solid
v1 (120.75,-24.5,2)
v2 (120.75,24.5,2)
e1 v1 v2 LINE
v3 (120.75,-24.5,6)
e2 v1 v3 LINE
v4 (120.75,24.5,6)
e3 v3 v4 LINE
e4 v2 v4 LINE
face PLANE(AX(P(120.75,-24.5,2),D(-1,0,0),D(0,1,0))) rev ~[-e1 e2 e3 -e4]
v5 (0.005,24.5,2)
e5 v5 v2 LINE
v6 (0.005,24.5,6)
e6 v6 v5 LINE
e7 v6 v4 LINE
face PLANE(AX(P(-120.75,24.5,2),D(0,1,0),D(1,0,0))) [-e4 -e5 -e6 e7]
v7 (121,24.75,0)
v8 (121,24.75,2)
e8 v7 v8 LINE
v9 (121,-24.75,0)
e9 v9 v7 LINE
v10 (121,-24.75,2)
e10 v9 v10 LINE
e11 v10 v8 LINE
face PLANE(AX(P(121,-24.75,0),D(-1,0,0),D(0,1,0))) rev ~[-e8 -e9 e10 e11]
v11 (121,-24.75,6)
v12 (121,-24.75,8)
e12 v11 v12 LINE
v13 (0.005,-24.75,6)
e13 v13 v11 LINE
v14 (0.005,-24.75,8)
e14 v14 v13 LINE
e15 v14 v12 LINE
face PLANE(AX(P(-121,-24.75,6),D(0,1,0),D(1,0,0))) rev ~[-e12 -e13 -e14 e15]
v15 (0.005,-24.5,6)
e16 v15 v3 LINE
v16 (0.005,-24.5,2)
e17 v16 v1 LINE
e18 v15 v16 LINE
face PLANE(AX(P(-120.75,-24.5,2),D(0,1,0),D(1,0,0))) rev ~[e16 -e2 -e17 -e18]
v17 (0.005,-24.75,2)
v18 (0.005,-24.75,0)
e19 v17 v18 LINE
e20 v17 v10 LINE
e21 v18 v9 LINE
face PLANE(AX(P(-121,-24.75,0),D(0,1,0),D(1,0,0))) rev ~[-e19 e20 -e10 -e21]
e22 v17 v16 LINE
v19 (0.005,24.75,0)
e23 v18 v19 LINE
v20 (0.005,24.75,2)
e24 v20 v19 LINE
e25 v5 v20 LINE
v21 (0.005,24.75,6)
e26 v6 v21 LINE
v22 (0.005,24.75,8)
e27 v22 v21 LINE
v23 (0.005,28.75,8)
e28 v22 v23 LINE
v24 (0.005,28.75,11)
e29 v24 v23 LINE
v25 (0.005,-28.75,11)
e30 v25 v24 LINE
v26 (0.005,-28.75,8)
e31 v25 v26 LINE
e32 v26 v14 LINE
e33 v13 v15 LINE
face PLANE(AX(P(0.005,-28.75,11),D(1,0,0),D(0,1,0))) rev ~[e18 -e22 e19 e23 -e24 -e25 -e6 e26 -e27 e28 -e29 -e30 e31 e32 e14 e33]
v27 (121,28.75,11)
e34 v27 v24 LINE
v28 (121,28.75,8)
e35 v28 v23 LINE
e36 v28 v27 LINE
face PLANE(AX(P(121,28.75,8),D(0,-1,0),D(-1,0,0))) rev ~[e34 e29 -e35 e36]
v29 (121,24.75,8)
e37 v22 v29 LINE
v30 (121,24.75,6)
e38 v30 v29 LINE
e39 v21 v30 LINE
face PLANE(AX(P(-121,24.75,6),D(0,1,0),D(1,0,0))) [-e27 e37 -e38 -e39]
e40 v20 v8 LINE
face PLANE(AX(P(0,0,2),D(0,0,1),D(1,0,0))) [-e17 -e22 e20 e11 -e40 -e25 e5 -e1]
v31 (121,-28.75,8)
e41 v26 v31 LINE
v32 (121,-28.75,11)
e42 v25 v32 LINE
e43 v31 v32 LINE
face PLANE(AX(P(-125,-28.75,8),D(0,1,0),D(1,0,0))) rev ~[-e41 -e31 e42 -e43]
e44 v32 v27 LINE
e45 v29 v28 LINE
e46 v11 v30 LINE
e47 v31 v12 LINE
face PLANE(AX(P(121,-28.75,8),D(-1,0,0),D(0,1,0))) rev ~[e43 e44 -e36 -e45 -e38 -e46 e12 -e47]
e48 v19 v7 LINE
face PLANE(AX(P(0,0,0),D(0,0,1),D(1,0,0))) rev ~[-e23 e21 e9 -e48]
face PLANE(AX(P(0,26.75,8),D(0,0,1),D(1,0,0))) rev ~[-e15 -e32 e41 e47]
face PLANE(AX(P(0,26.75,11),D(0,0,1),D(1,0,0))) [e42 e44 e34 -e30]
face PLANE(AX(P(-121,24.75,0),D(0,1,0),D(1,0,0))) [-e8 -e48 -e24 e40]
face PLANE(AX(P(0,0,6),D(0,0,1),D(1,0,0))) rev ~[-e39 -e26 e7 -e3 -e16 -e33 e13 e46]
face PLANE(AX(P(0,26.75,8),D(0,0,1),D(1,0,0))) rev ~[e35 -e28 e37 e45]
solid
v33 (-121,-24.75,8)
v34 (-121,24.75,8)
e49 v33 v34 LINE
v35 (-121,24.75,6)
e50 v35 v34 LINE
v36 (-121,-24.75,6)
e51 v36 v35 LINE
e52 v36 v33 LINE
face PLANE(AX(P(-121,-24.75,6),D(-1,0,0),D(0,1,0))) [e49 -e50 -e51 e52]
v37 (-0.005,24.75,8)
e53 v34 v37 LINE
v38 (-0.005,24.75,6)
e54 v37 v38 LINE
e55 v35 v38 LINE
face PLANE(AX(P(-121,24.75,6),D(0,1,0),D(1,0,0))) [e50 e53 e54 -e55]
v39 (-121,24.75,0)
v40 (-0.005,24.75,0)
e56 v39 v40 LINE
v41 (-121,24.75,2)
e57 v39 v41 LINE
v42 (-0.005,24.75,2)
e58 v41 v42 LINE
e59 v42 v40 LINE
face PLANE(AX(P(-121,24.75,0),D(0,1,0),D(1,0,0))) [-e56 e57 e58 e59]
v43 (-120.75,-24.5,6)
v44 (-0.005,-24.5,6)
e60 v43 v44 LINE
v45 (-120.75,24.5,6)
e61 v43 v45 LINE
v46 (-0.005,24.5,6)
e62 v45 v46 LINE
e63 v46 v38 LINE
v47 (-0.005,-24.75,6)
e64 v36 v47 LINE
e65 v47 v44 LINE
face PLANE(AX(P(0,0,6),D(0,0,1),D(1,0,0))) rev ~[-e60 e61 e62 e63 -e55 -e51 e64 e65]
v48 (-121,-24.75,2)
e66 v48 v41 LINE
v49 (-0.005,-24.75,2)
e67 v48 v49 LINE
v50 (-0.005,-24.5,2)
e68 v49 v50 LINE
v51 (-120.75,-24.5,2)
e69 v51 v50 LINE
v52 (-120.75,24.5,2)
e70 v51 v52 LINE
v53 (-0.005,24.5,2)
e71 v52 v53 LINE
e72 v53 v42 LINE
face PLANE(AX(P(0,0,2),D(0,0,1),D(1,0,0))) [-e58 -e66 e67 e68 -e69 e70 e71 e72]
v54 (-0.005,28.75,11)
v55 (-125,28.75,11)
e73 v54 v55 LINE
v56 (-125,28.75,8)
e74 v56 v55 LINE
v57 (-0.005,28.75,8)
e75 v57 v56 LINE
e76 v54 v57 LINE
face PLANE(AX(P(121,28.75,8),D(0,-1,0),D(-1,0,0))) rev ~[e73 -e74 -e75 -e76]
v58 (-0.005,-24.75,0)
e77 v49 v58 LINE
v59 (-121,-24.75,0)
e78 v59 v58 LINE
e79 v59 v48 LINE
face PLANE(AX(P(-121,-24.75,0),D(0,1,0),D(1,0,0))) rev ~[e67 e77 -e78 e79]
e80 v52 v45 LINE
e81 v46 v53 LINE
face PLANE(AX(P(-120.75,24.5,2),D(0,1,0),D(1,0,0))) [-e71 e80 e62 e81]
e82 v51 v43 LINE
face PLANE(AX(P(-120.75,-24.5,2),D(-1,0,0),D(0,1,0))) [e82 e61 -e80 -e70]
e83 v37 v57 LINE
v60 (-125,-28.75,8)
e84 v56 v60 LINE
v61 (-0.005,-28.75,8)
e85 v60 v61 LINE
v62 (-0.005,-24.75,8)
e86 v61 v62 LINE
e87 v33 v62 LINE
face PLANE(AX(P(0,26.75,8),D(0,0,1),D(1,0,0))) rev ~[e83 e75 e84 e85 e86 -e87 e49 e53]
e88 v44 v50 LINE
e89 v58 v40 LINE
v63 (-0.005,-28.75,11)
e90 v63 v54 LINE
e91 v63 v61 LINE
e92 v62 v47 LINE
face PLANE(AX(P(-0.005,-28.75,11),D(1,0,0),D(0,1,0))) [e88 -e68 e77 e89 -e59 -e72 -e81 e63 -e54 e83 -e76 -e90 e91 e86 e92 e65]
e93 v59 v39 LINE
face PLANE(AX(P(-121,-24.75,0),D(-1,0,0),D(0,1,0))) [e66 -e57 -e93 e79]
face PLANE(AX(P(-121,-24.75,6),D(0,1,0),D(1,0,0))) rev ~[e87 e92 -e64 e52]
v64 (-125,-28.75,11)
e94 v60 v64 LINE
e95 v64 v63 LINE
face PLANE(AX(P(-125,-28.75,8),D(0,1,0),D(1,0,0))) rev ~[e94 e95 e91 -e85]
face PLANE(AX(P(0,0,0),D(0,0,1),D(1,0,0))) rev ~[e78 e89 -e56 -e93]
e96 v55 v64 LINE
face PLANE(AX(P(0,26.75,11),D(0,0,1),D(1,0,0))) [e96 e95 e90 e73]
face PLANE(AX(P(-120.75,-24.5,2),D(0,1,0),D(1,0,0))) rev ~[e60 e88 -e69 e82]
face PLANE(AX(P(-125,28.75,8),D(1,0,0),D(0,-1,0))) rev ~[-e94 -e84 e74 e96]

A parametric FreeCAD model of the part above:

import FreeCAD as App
import Part
import Sketcher

V = App.Vector


def add_polygon(sketch, points):
    """Adds a closed chain of lines whose ends are joined by coincident constraints."""
    first, n = sketch.GeometryCount, len(points)
    for a, b in zip(points, points[1:] + points[:1]):
        sketch.addGeometry(Part.LineSegment(App.Vector(*a, 0), App.Vector(*b, 0)), False)
    for i in range(n):
        sketch.addConstraint(Sketcher.Constraint("Coincident", first + i, 2, first + (i + 1) % n, 1))

doc = App.newDocument("Part")
body = doc.addObject("PartDesign::Body", "Body")
body.AllowCompound = True

sketch1 = body.newObject("Sketcher::SketchObject", "Sketch")
sketch1.AttachmentSupport = (doc.getObject("XY_Plane"), [""])
sketch1.MapMode = "FlatFace"
add_polygon(sketch1, [(-121, 25), (-121, -25), (121, -25), (121, 25)])
sketch1.addConstraint([
    Sketcher.Constraint("Vertical", 0),
    Sketcher.Constraint("Horizontal", 1),
    Sketcher.Constraint("Vertical", 2),
    Sketcher.Constraint("Horizontal", 3),
    Sketcher.Constraint("Symmetric", 0, 2, 2, 2, -1, 1),
    Sketcher.Constraint("DistanceX", 1, 1, 1, 2, 242.0),
    Sketcher.Constraint("DistanceY", 0, 2, 0, 1, 49.5),
])
pad1 = body.newObject("PartDesign::Pad", "Pad")
pad1.Profile = sketch1
pad1.Length = 2

sketch2 = body.newObject("Sketcher::SketchObject", "Sketch001")
sketch2.AttachmentSupport = (doc.getObject("XY_Plane"), [""])
sketch2.MapMode = "FlatFace"
sketch2.AttachmentOffset = App.Placement(V(0, 0, 2), App.Rotation())
add_polygon(sketch2, [(-121, 24), (-121, -24), (121, -24), (121, 24)])
sketch2.addConstraint([
    Sketcher.Constraint("Vertical", 0),
    Sketcher.Constraint("Horizontal", 1),
    Sketcher.Constraint("Vertical", 2),
    Sketcher.Constraint("Horizontal", 3),
    Sketcher.Constraint("Symmetric", 0, 2, 2, 2, -1, 1),
    Sketcher.Constraint("DistanceY", 0, 2, 0, 1, 49.0),
    Sketcher.Constraint("DistanceX", 1, 1, 1, 2, 241.5),
])
pad2 = body.newObject("PartDesign::Pad", "Pad001")
pad2.Profile = sketch2
pad2.Length = 4

sketch3 = body.newObject("Sketcher::SketchObject", "Sketch002")
sketch3.AttachmentSupport = (doc.getObject("XY_Plane"), [""])
sketch3.MapMode = "FlatFace"
sketch3.AttachmentOffset = App.Placement(V(0, 0, 6), App.Rotation())
add_polygon(sketch3, [(-121, 25), (-121, -25), (121, -25), (121, 25)])
sketch3.addConstraint([
    Sketcher.Constraint("Vertical", 0),
    Sketcher.Constraint("Horizontal", 1),
    Sketcher.Constraint("Vertical", 2),
    Sketcher.Constraint("Horizontal", 3),
    Sketcher.Constraint("Symmetric", 0, 2, 2, 2, -1, 1),
    Sketcher.Constraint("DistanceX", 1, 1, 1, 2, 242.0),
    Sketcher.Constraint("DistanceY", 0, 2, 0, 1, 49.5),
])
pad3 = body.newObject("PartDesign::Pad", "Pad002")
pad3.Profile = sketch3
pad3.Length = 2

sketch4 = body.newObject("Sketcher::SketchObject", "Sketch003")
sketch4.AttachmentSupport = (doc.getObject("XY_Plane"), [""])
sketch4.MapMode = "FlatFace"
sketch4.AttachmentOffset = App.Placement(V(0, 0, 8), App.Rotation())
add_polygon(sketch4, [(121, 29), (-125, 29), (-125, -29), (121, -29)])
sketch4.addConstraint([
    Sketcher.Constraint("Horizontal", 0),
    Sketcher.Constraint("Vertical", 1),
    Sketcher.Constraint("Horizontal", 2),
    Sketcher.Constraint("Vertical", 3),
    Sketcher.Constraint("DistanceX", 0, 2, 0, 1, 246.0),
    Sketcher.Constraint("DistanceY", 1, 2, 1, 1, 57.5),
    Sketcher.Constraint("DistanceX", 0, 2, -1, 1, 125.0),
    Sketcher.Constraint("DistanceY", -1, 1, 0, 2, 28.75),
])
pad4 = body.newObject("PartDesign::Pad", "Pad003")
pad4.Profile = sketch4
pad4.Length = 3

sketch5 = body.newObject("Sketcher::SketchObject", "Sketch004")
sketch5.AttachmentSupport = (doc.getObject("XY_Plane"), [""])
sketch5.MapMode = "FlatFace"
sketch5.AttachmentOffset = App.Placement(V(0, 0, 11), App.Rotation())
add_polygon(sketch5, [(-0.005, 28.75), (-0.005, -28.75), (0.005, -28.75), (0.005, 28.75)])
sketch5.addConstraint([
    Sketcher.Constraint("Vertical", 0),
    Sketcher.Constraint("Horizontal", 1),
    Sketcher.Constraint("Vertical", 2),
    Sketcher.Constraint("Horizontal", 3),
    Sketcher.Constraint("Symmetric", 0, 2, 2, 2, -1, 1),
    Sketcher.Constraint("DistanceY", 0, 2, 0, 1, 57.5),
    Sketcher.Constraint("DistanceX", 1, 1, 1, 2, 0.01),
])
pocket1 = body.newObject("PartDesign::Pocket", "Pocket")
pocket1.Profile = sketch5
pocket1.Length = 25

doc.recompute()
